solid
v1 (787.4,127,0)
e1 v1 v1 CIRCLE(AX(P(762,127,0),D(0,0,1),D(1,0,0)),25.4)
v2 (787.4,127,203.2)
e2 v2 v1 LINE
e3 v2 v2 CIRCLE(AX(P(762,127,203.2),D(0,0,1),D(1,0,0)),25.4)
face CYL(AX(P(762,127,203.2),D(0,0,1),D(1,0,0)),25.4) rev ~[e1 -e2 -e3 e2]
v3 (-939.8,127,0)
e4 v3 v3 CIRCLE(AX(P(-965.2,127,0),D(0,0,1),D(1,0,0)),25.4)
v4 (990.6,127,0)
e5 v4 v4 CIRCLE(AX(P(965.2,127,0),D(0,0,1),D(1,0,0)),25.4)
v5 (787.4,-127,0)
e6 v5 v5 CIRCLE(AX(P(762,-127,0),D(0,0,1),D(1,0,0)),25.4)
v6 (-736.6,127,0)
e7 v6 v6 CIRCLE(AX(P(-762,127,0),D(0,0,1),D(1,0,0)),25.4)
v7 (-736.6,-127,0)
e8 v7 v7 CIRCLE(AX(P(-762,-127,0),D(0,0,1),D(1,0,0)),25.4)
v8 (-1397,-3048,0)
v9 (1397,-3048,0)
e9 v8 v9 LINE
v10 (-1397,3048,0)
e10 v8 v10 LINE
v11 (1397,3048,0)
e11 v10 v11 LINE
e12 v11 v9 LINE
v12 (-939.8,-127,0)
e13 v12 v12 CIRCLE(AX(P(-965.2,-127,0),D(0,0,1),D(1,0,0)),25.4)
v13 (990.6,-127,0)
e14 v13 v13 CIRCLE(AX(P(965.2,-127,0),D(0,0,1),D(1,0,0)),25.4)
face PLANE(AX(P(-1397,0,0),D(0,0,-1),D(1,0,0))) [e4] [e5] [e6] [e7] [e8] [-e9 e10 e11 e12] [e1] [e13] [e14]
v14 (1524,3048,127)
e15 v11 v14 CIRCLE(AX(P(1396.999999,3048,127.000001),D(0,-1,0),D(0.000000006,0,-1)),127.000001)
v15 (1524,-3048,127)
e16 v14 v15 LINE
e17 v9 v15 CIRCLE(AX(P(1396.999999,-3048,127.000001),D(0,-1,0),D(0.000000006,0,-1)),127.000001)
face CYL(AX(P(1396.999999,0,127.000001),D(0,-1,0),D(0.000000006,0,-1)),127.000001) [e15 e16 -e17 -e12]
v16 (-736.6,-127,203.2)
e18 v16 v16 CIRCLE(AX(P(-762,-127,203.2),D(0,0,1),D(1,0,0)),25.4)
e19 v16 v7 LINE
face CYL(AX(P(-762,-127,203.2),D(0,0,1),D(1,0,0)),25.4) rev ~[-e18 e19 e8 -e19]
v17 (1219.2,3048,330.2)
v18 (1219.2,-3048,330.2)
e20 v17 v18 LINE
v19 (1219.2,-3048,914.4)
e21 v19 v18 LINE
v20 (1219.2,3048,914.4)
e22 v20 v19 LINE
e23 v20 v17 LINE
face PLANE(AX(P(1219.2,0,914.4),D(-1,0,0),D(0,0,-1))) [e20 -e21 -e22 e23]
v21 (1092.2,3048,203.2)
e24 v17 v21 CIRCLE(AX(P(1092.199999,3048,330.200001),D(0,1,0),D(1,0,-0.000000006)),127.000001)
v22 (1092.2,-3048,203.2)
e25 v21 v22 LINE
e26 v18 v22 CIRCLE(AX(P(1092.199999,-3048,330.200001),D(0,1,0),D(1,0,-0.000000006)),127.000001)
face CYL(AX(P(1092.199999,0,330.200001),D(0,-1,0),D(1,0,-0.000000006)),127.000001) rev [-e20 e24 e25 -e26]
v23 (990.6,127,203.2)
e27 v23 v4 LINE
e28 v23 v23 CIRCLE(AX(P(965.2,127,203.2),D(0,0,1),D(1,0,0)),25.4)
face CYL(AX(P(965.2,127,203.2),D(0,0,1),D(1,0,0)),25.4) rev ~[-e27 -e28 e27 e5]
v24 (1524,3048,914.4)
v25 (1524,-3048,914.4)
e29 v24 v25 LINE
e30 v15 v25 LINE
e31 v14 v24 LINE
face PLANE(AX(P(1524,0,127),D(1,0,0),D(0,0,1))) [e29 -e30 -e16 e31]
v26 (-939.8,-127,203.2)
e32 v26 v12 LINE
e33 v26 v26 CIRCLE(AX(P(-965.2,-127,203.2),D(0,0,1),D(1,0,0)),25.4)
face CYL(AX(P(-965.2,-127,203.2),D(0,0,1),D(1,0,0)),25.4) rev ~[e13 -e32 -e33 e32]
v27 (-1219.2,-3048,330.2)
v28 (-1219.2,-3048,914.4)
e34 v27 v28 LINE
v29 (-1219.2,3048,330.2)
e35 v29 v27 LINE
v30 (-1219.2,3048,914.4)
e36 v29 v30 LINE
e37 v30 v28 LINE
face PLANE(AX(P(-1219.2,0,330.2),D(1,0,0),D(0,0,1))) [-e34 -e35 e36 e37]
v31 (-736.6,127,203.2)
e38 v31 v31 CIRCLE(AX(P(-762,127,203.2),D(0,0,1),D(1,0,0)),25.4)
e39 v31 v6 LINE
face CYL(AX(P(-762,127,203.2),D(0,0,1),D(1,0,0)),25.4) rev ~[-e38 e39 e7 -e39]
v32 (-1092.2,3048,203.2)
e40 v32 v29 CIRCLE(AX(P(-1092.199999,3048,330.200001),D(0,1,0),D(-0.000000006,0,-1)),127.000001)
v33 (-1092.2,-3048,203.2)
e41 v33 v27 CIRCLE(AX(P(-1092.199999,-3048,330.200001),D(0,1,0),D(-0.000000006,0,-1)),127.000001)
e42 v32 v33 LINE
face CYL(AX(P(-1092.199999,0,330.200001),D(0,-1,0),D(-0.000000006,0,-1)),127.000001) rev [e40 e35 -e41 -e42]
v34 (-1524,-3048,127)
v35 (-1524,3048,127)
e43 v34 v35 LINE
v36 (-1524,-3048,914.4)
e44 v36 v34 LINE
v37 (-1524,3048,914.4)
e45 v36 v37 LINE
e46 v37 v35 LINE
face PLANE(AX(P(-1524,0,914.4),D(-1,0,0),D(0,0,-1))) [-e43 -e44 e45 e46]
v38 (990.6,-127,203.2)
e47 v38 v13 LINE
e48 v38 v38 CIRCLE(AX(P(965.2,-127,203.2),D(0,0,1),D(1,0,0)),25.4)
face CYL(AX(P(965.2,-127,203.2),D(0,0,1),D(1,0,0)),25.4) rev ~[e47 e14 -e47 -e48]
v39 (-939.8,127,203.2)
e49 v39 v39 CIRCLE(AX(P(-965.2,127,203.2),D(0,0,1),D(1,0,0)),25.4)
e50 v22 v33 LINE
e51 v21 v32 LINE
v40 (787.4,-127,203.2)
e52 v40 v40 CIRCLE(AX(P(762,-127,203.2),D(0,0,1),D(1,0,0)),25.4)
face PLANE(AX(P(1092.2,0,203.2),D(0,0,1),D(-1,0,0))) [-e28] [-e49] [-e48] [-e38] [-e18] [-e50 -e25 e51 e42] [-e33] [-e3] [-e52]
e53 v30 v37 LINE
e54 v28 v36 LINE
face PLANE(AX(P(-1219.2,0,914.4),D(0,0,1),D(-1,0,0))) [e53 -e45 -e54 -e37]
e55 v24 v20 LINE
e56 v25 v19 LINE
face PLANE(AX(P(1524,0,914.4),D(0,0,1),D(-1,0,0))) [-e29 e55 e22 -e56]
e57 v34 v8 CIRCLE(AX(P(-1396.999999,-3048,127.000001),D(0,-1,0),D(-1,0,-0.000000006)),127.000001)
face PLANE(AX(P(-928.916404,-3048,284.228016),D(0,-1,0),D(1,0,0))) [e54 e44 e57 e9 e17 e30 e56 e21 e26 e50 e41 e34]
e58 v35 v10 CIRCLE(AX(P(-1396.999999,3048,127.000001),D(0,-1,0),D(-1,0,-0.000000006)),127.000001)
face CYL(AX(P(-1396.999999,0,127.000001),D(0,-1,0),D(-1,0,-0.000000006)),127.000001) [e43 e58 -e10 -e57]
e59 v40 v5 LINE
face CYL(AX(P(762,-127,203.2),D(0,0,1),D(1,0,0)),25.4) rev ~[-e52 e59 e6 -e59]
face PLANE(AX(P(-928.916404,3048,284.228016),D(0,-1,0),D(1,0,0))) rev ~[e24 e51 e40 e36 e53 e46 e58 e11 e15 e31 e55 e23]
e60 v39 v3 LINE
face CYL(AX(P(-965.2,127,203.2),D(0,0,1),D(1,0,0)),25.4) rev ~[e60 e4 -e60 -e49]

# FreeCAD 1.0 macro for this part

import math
import FreeCAD as App
import Part
import Sketcher
Q = App.Units.Quantity

doc = App.newDocument("Part")
body = doc.addObject("PartDesign::Body", "Body")

# Sketch on XZ plane
sketch1 = body.newObject("Sketcher::SketchObject", "Sketch")
sketch1.AttachmentSupport = (doc.getObject("XZ_Plane"), [""])
sketch1.MapMode = "FlatFace"
sketch1.addGeometry(Part.LineSegment(App.Vector(-1397, 0, 0), App.Vector(1397, 0, 0)), False)
sketch1.addGeometry(Part.ArcOfCircle(Part.Circle(App.Vector(1397, 127, 0), App.Vector(0, 0, 1), 127), math.radians(-90), math.radians(0)), False)
sketch1.addGeometry(Part.LineSegment(App.Vector(1524, 127, 0), App.Vector(1524, 914, 0)), False)
sketch1.addGeometry(Part.LineSegment(App.Vector(1524, 914, 0), App.Vector(1219, 914, 0)), False)
sketch1.addGeometry(Part.LineSegment(App.Vector(1219, 914, 0), App.Vector(1219, 330, 0)), False)
sketch1.addGeometry(Part.ArcOfCircle(Part.Circle(App.Vector(1092, 330, 0), App.Vector(0, 0, 1), 127), math.radians(-90), math.radians(0)), False)
sketch1.addGeometry(Part.LineSegment(App.Vector(1092, 203, 0), App.Vector(-1092, 203, 0)), False)
sketch1.addGeometry(Part.ArcOfCircle(Part.Circle(App.Vector(-1092, 330, 0), App.Vector(0, 0, 1), 127), math.radians(-180), math.radians(-90)), False)
sketch1.addGeometry(Part.LineSegment(App.Vector(-1219, 330, 0), App.Vector(-1219, 914, 0)), False)
sketch1.addGeometry(Part.LineSegment(App.Vector(-1219, 914, 0), App.Vector(-1524, 914, 0)), False)
sketch1.addGeometry(Part.LineSegment(App.Vector(-1524, 914, 0), App.Vector(-1524, 127, 0)), False)
sketch1.addGeometry(Part.ArcOfCircle(Part.Circle(App.Vector(-1397, 127, 0), App.Vector(0, 0, 1), 127), math.radians(-180), math.radians(-90)), False)
sketch1.addConstraint(Sketcher.Constraint("Tangent", 0, 2, 1, 1))
sketch1.addConstraint(Sketcher.Constraint("Tangent", 1, 2, 2, 1))
sketch1.addConstraint(Sketcher.Constraint("Coincident", 2, 2, 3, 1))
sketch1.addConstraint(Sketcher.Constraint("Coincident", 3, 2, 4, 1))
sketch1.addConstraint(Sketcher.Constraint("Tangent", 4, 2, 5, 2))
sketch1.addConstraint(Sketcher.Constraint("Tangent", 5, 1, 6, 1))
sketch1.addConstraint(Sketcher.Constraint("Tangent", 6, 2, 7, 2))
sketch1.addConstraint(Sketcher.Constraint("Tangent", 7, 1, 8, 1))
sketch1.addConstraint(Sketcher.Constraint("Coincident", 8, 2, 9, 1))
sketch1.addConstraint(Sketcher.Constraint("Coincident", 9, 2, 10, 1))
sketch1.addConstraint(Sketcher.Constraint("Tangent", 10, 2, 11, 1))
sketch1.addConstraint(Sketcher.Constraint("Tangent", 11, 2, 0, 1))
sketch1.addConstraint(Sketcher.Constraint("Horizontal", 0))
sketch1.addConstraint(Sketcher.Constraint("Vertical", 2))
sketch1.addConstraint(Sketcher.Constraint("Horizontal", 3))
sketch1.addConstraint(Sketcher.Constraint("Vertical", 4))
sketch1.addConstraint(Sketcher.Constraint("Horizontal", 6))
sketch1.addConstraint(Sketcher.Constraint("Vertical", 8))
sketch1.addConstraint(Sketcher.Constraint("Horizontal", 9))
sketch1.addConstraint(Sketcher.Constraint("Vertical", 10))
sketch1.addConstraint(Sketcher.Constraint("Equal", 1, 5))
sketch1.addConstraint(Sketcher.Constraint("Equal", 5, 7))
sketch1.addConstraint(Sketcher.Constraint("Equal", 7, 11))
sketch1.addConstraint(Sketcher.Constraint("Symmetric", 0, 2, 11, 2, -1, 1))
sketch1.addConstraint(Sketcher.Constraint("Symmetric", 3, 2, 8, 2, -2))
sketch1.addConstraint(Sketcher.Constraint("Radius", 1, Q("5 in")))
sketch1.addConstraint(Sketcher.Constraint("DistanceX", 0, 1, 0, 2, Q("110 in")))
sketch1.addConstraint(Sketcher.Constraint("DistanceX", 3, 2, 3, 1, Q("12 in")))
sketch1.addConstraint(Sketcher.Constraint("DistanceY", 2, 1, 2, 2, Q("31 in")))
sketch1.addConstraint(Sketcher.Constraint("DistanceY", 4, 2, 4, 1, Q("23 in")))
pad1 = body.newObject("PartDesign::Pad", "Pad")
pad1.Profile = sketch1
pad1.Length = Q("240 in")
pad1.Midplane = True

# Sketch on XY plane
sketch2 = body.newObject("Sketcher::SketchObject", "Sketch001")
sketch2.AttachmentSupport = (doc.getObject("XY_Plane"), [""])
sketch2.MapMode = "FlatFace"
sketch2.AttachmentOffset = App.Placement(App.Vector(0, 0, 8 * 25.4), App.Rotation())
sketch2.addGeometry(Part.Circle(App.Vector(-965, 127, 0), App.Vector(0, 0, 1), 25), False)
sketch2.addGeometry(Part.Circle(App.Vector(-762, 127, 0), App.Vector(0, 0, 1), 25), False)
sketch2.addGeometry(Part.Circle(App.Vector(-965, -127, 0), App.Vector(0, 0, 1), 25), False)
sketch2.addGeometry(Part.Circle(App.Vector(-762, -127, 0), App.Vector(0, 0, 1), 25), False)
sketch2.addGeometry(Part.Circle(App.Vector(762, 127, 0), App.Vector(0, 0, 1), 25), False)
sketch2.addGeometry(Part.Circle(App.Vector(965, 127, 0), App.Vector(0, 0, 1), 25), False)
sketch2.addGeometry(Part.Circle(App.Vector(965, -127, 0), App.Vector(0, 0, 1), 25), False)
sketch2.addGeometry(Part.Circle(App.Vector(762, -127, 0), App.Vector(0, 0, 1), 25), False)
sketch2.addConstraint(Sketcher.Constraint("Equal", 0, 1))
sketch2.addConstraint(Sketcher.Constraint("Equal", 1, 2))
sketch2.addConstraint(Sketcher.Constraint("Equal", 2, 3))
sketch2.addConstraint(Sketcher.Constraint("Equal", 3, 4))
sketch2.addConstraint(Sketcher.Constraint("Equal", 4, 5))
sketch2.addConstraint(Sketcher.Constraint("Equal", 5, 6))
sketch2.addConstraint(Sketcher.Constraint("Equal", 6, 7))
sketch2.addConstraint(Sketcher.Constraint("Symmetric", 3, 3, 4, 3, -1, 1))
sketch2.addConstraint(Sketcher.Constraint("Symmetric", 2, 3, 5, 3, -1, 1))
sketch2.addConstraint(Sketcher.Constraint("Symmetric", 0, 3, 6, 3, -1, 1))
sketch2.addConstraint(Sketcher.Constraint("Symmetric", 1, 3, 7, 3, -1, 1))
sketch2.addConstraint(Sketcher.Constraint("Symmetric", 1, 3, 4, 3, -2))
sketch2.addConstraint(Sketcher.Constraint("Symmetric", 0, 3, 5, 3, -2))
sketch2.addConstraint(Sketcher.Constraint("Horizontal", 0, 3, 1, 3))
sketch2.addConstraint(Sketcher.Constraint("Diameter", 0, Q("2 in")))
sketch2.addConstraint(Sketcher.Constraint("DistanceX", 0, 3, -1, 1, Q("38 in")))
sketch2.addConstraint(Sketcher.Constraint("DistanceY", -1, 1, 0, 3, Q("5 in")))
sketch2.addConstraint(Sketcher.Constraint("DistanceX", 1, 3, -1, 1, Q("30 in")))
pocket1 = body.newObject("PartDesign::Pocket", "Pocket")
pocket1.Profile = sketch2
pocket1.Type = "ThroughAll"

doc.recompute()
